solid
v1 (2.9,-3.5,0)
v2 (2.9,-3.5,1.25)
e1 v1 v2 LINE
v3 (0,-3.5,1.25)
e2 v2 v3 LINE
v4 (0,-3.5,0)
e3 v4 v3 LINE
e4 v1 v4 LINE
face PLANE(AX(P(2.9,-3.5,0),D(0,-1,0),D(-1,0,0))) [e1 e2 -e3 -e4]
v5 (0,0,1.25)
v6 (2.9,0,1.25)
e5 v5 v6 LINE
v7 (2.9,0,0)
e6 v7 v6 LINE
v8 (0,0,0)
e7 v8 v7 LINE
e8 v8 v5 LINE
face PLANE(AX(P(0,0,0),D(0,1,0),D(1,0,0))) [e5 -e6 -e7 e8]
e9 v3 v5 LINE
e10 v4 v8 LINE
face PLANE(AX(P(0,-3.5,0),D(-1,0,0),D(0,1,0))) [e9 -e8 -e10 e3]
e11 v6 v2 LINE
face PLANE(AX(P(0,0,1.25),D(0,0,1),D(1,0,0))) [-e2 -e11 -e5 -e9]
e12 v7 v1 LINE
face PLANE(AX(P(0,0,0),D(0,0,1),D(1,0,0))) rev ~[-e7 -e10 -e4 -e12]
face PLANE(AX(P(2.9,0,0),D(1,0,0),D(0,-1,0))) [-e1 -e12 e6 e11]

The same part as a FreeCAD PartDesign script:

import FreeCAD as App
import Part
import Sketcher

V = App.Vector

doc = App.newDocument("Part")
body = doc.addObject("PartDesign::Body", "Body")

sketch1 = doc.addObject("Sketcher::SketchObject", "Sketch")
body.addObject(sketch1)
sketch1.AttachmentSupport = (doc.XY_Plane, [""])
sketch1.MapMode = "FlatFace"
sketch1.addGeometry(Part.LineSegment(V(2.9, 0, 0), V(0, 0, 0)), False)
sketch1.addGeometry(Part.LineSegment(V(0, 0, 0), V(0, -3.5, 0)), False)
sketch1.addGeometry(Part.LineSegment(V(0, -3.5, 0), V(2.9, -3.5, 0)), False)
sketch1.addGeometry(Part.LineSegment(V(2.9, -3.5, 0), V(2.9, 0, 0)), False)
sketch1.addConstraint(Sketcher.Constraint("Coincident", 0, 2, 1, 1))
sketch1.addConstraint(Sketcher.Constraint("Coincident", 1, 2, 2, 1))
sketch1.addConstraint(Sketcher.Constraint("Coincident", 2, 2, 3, 1))
sketch1.addConstraint(Sketcher.Constraint("Coincident", 3, 2, 0, 1))
sketch1.addConstraint(Sketcher.Constraint("Horizontal", 0))
sketch1.addConstraint(Sketcher.Constraint("Vertical", 1))
sketch1.addConstraint(Sketcher.Constraint("Horizontal", 2))
sketch1.addConstraint(Sketcher.Constraint("Vertical", 3))
sketch1.addConstraint(Sketcher.Constraint("Coincident", 0, 2, -1, 1))
sketch1.addConstraint(Sketcher.Constraint("DistanceX", 0, 2, 0, 1, 2.9))
sketch1.addConstraint(Sketcher.Constraint("DistanceY", 1, 2, 1, 1, 3.5))
pad1 = doc.addObject("PartDesign::Pad", "Pad")
body.addObject(pad1)
pad1.Profile = sketch1
pad1.Length = 1.25

doc.recompute()
